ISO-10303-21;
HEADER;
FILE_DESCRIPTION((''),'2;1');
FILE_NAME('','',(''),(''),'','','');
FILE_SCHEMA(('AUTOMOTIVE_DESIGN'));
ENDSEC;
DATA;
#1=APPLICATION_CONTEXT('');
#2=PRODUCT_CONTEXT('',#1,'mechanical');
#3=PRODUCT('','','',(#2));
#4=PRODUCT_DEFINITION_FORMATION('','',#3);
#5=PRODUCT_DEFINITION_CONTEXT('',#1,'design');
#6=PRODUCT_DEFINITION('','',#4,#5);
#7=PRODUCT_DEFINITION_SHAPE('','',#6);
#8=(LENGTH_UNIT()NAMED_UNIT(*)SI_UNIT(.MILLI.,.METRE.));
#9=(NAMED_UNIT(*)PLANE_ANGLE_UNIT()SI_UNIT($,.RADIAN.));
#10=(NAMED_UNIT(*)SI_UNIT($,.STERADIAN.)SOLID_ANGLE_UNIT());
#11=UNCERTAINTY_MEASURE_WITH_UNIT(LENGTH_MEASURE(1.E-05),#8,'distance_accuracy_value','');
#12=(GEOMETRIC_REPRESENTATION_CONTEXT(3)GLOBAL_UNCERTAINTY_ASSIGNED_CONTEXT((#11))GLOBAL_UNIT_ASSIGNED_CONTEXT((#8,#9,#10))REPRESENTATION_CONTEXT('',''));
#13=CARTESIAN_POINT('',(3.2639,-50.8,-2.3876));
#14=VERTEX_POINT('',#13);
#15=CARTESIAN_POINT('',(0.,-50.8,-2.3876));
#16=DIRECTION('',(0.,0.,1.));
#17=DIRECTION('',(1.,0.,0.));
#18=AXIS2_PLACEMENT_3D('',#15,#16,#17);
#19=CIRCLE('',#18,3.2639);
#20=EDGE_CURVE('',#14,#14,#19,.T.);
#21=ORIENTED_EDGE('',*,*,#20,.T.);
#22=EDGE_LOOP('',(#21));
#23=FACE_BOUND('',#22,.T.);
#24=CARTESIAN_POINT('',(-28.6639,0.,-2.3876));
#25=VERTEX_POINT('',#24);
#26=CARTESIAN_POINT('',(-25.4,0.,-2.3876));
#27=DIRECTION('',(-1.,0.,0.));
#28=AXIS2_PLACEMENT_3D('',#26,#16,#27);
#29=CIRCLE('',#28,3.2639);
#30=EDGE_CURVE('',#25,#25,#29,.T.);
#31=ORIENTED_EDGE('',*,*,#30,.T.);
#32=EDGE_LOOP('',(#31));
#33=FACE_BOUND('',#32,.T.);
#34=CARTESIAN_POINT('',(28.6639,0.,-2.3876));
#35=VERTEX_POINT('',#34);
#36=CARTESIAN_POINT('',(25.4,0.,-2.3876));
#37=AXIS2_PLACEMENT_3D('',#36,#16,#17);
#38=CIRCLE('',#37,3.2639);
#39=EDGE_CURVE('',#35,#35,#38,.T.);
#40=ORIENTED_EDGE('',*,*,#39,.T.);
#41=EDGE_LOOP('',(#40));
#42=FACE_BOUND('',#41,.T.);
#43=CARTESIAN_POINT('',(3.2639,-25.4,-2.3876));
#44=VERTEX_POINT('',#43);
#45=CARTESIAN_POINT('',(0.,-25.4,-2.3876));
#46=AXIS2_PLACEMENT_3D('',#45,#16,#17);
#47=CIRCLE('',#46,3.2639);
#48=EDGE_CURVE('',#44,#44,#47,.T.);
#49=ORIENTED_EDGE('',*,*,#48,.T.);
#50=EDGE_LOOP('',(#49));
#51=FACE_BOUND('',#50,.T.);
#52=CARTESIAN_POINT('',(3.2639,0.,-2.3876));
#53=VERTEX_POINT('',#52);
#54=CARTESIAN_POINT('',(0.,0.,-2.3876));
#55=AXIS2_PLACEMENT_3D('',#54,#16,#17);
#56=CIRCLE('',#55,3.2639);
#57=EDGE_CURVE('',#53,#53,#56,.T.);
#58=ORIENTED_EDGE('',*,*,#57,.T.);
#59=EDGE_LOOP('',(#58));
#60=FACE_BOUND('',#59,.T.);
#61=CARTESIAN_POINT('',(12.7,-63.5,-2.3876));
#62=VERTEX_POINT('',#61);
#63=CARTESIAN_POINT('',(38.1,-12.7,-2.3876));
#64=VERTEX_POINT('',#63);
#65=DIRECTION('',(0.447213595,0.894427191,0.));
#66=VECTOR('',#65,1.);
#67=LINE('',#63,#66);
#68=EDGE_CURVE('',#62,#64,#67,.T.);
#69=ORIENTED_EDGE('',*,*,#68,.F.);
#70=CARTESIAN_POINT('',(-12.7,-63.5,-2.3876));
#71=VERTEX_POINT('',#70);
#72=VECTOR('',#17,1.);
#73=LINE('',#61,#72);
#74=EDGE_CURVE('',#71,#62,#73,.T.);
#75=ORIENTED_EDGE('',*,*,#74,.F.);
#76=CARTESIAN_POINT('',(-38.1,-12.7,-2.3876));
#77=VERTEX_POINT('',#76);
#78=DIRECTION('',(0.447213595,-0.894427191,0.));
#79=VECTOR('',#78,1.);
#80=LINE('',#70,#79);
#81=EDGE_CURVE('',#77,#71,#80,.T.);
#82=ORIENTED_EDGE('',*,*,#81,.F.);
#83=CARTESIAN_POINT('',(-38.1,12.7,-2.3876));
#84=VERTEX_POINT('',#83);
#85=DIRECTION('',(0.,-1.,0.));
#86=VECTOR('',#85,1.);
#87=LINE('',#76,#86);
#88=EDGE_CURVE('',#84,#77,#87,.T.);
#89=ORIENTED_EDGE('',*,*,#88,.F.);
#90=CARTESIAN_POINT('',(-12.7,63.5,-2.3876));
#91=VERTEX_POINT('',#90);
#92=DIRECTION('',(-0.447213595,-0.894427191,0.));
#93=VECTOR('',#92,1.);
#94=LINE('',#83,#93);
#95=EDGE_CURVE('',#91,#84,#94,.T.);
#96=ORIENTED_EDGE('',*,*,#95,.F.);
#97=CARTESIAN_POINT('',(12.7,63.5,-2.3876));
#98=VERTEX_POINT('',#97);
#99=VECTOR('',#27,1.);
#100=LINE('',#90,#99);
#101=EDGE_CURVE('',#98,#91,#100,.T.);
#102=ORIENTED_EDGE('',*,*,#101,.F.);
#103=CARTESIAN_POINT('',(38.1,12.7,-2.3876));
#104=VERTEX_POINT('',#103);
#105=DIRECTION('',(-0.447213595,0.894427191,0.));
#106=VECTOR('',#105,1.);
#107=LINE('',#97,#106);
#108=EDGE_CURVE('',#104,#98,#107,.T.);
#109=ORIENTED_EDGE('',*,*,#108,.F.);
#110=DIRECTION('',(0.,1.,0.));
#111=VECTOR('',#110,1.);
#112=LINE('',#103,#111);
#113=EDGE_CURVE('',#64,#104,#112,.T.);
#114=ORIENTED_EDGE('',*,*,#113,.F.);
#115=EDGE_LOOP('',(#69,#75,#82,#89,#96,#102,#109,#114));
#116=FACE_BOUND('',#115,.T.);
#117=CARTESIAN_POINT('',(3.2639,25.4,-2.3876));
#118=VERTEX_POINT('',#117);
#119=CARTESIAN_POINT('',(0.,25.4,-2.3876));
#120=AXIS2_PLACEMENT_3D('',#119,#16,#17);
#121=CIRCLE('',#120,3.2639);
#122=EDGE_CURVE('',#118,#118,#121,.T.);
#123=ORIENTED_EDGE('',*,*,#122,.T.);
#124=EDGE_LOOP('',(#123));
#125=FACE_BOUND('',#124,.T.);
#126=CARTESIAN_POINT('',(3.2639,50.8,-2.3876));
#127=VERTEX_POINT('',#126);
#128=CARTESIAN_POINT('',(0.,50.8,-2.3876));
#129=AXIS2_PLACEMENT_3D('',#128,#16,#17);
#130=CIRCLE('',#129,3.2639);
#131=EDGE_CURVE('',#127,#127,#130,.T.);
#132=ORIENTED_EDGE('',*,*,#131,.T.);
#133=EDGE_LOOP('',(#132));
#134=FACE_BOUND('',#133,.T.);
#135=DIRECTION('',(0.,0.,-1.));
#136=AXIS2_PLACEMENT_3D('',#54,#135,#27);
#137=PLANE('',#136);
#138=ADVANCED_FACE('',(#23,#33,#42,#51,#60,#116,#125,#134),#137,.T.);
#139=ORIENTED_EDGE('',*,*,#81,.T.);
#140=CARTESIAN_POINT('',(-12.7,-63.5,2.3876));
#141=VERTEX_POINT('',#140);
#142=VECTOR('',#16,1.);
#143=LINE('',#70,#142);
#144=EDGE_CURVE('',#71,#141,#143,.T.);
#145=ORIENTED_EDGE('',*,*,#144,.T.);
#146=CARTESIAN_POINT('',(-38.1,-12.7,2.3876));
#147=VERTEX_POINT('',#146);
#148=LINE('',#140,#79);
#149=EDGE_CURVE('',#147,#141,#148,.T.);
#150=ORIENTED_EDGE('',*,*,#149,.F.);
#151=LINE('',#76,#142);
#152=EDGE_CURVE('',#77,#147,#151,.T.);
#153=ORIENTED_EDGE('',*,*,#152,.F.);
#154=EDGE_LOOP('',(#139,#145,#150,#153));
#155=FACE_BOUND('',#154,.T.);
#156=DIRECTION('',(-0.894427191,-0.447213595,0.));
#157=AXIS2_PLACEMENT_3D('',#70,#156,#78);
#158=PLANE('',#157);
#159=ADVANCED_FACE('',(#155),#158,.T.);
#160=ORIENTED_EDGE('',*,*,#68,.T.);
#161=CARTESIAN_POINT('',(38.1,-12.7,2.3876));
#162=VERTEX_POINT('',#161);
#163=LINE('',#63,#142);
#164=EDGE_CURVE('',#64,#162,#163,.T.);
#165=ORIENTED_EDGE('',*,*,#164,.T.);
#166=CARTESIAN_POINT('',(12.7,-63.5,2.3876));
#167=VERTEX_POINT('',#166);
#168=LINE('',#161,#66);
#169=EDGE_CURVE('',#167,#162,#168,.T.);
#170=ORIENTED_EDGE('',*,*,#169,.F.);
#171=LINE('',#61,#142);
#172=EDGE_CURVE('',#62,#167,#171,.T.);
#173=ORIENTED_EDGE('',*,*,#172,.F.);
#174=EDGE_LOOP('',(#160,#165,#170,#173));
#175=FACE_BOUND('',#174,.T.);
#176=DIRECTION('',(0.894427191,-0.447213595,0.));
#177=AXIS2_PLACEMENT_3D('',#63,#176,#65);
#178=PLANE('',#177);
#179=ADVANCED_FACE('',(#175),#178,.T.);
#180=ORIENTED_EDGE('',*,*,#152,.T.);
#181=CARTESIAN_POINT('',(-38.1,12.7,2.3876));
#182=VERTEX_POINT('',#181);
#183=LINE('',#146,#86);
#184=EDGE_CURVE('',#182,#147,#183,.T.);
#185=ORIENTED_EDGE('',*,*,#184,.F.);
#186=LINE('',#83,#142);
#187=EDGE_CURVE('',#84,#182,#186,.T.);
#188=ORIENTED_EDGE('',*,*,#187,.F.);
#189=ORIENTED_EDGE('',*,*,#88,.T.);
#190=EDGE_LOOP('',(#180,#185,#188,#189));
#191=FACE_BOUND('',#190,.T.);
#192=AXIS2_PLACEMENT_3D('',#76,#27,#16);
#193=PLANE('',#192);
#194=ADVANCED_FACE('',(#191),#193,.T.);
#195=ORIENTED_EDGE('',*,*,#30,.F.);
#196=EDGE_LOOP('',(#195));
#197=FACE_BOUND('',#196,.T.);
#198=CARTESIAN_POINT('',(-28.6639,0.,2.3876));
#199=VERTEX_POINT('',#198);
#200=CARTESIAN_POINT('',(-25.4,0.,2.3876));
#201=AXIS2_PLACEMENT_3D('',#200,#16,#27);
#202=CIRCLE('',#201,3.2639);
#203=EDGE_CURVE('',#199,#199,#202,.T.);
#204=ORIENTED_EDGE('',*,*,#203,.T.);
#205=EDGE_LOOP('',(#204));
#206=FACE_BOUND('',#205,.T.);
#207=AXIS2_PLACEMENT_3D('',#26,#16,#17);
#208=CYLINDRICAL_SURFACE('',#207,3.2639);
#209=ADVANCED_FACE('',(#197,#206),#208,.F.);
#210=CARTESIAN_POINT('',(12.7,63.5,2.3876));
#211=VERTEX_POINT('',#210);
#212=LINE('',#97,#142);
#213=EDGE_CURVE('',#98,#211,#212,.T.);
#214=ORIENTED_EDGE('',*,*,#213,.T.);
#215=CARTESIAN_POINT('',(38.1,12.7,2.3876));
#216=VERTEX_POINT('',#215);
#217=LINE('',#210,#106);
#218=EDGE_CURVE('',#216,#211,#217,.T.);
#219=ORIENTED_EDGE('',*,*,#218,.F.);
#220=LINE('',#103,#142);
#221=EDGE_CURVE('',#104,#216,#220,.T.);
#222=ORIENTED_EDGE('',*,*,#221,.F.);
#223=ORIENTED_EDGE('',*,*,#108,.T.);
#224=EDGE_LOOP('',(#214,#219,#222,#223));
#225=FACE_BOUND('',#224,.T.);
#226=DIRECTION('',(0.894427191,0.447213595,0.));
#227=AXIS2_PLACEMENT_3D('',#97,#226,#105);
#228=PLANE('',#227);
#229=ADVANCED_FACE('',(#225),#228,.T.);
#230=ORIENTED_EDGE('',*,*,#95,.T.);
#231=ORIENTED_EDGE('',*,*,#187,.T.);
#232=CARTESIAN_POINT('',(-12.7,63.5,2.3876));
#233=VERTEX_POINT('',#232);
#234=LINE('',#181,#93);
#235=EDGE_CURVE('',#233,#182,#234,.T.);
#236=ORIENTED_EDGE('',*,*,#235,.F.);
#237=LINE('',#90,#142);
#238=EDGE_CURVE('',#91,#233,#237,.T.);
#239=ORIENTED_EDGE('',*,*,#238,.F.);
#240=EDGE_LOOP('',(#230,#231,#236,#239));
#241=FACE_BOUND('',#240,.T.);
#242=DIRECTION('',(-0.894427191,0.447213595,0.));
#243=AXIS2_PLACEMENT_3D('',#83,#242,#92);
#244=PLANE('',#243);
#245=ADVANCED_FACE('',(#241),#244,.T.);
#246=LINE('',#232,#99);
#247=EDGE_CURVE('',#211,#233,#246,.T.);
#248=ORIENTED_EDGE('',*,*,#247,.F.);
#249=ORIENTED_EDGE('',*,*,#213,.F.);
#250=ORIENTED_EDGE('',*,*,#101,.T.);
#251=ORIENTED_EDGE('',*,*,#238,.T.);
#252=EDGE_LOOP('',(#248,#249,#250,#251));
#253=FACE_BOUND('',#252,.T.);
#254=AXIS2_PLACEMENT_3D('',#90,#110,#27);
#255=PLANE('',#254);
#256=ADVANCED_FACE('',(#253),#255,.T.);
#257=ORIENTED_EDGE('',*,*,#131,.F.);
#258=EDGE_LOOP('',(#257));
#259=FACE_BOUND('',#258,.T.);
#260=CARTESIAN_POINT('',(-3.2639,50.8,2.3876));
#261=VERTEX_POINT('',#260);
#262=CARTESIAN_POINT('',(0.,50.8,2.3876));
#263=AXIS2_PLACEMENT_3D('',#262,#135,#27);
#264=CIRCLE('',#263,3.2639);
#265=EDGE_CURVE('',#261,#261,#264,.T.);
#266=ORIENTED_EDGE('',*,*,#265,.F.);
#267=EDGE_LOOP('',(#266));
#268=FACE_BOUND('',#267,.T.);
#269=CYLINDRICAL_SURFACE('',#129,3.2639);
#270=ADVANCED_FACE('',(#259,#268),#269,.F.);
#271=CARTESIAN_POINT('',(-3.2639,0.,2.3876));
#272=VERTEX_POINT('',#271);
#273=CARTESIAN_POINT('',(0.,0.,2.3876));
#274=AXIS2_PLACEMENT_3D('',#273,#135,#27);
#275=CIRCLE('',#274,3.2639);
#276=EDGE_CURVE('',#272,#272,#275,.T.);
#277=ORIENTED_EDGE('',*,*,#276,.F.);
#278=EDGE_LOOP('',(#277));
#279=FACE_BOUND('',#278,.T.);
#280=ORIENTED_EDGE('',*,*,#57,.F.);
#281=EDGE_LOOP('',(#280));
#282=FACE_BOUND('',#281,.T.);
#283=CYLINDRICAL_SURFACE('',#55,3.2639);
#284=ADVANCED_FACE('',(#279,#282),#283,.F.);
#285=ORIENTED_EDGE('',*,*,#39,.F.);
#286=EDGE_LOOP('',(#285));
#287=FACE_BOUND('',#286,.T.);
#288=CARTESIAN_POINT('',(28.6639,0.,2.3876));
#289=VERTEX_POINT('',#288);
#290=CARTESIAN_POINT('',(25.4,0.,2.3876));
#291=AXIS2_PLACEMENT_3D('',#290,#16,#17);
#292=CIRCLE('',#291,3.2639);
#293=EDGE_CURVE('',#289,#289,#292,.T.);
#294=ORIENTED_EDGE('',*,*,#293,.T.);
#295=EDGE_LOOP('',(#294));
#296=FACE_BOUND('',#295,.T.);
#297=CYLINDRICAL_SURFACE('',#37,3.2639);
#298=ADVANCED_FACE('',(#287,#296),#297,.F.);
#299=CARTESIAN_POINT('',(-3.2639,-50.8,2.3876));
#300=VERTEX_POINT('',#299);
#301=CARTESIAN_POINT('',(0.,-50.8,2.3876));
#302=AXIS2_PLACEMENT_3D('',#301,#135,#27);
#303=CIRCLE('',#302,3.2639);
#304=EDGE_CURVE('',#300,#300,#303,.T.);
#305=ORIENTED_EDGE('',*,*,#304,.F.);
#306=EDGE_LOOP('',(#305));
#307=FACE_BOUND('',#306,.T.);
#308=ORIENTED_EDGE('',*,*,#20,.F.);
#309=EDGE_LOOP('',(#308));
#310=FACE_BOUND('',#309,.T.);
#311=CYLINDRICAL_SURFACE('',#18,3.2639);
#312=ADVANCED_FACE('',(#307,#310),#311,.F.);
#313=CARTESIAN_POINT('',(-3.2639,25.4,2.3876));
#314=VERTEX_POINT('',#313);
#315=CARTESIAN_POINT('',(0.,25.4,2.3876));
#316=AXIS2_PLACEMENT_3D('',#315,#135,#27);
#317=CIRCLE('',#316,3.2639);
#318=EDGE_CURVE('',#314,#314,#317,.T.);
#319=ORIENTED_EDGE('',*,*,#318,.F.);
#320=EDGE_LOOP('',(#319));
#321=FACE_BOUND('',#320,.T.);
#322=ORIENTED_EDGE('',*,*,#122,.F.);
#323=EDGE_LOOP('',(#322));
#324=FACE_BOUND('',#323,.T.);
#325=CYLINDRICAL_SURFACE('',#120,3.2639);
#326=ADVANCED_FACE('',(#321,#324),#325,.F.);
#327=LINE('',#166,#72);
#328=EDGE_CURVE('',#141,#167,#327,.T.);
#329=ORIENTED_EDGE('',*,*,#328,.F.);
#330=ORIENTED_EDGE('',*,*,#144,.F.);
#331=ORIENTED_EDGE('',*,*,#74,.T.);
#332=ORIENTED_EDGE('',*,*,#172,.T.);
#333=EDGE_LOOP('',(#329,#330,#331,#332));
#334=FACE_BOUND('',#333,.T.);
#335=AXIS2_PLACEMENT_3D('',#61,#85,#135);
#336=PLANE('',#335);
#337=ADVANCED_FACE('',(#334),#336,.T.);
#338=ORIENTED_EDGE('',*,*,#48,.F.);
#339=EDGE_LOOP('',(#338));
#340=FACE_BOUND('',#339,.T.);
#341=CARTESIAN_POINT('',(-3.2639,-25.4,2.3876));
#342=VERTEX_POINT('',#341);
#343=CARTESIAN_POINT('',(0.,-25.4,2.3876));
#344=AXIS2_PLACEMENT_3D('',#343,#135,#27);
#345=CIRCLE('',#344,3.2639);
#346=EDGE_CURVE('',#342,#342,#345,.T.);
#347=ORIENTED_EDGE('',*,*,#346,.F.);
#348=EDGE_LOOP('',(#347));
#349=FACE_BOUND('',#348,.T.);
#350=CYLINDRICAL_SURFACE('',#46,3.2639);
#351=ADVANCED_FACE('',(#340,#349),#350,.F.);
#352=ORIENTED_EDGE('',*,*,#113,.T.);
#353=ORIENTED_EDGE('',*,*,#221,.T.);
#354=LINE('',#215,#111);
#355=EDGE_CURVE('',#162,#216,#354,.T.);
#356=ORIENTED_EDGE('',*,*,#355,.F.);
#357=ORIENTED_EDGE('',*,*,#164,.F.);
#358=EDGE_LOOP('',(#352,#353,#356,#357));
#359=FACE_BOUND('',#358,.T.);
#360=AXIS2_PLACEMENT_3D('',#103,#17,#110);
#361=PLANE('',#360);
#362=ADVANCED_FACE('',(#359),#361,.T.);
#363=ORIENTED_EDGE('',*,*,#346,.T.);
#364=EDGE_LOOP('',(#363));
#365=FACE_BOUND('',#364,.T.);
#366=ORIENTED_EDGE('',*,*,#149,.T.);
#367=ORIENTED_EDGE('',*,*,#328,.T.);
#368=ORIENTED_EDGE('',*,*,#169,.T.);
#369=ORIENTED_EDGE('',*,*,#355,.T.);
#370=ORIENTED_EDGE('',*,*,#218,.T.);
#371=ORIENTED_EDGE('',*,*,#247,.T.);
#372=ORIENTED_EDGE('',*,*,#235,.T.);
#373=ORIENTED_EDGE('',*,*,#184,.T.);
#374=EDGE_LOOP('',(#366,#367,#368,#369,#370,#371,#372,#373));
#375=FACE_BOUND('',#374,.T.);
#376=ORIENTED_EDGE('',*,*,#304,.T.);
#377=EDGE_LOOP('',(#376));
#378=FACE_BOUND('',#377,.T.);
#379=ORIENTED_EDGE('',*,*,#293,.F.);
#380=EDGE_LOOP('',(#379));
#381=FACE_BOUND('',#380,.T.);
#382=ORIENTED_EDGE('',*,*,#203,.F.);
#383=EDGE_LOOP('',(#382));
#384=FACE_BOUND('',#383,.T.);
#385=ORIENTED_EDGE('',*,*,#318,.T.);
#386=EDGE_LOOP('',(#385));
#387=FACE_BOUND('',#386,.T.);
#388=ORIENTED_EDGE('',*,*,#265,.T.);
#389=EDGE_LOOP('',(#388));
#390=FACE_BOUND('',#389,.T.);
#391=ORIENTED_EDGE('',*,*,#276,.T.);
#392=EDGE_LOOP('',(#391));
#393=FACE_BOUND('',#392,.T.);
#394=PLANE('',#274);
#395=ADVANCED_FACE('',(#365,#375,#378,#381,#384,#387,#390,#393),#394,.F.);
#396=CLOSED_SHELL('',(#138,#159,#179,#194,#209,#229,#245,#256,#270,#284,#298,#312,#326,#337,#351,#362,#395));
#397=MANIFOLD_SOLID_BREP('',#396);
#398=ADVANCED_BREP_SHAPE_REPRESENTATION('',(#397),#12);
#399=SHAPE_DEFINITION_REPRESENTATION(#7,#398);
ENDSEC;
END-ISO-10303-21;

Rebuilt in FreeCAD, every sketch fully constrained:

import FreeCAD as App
import Part
import Sketcher
from FreeCAD import Vector
Q = App.Units.Quantity


def add_polygon(sketch, points):
    """Adds a closed chain of lines whose ends are joined by coincident constraints."""
    first, n = sketch.GeometryCount, len(points)
    for a, b in zip(points, points[1:] + points[:1]):
        sketch.addGeometry(Part.LineSegment(App.Vector(*a, 0), App.Vector(*b, 0)), False)
    for i in range(n):
        sketch.addConstraint(Sketcher.Constraint("Coincident", first + i, 2, first + (i + 1) % n, 1))

doc = App.newDocument("Part")
body = doc.addObject("PartDesign::Body", "Body")

sketch1 = body.newObject("Sketcher::SketchObject", "Sketch")
sketch1.AttachmentSupport = (doc.getObject("XY_Plane"), [""])
sketch1.MapMode = "FlatFace"
add_polygon(sketch1, [(12.7, 63.5), (-12.7, 63.5), (-38.1, 12.7), (-38.1, -12.7), (-12.7, -63.5), (12.7, -63.5), (38.1, -12.7), (38.1, 12.7)])
sketch1.addConstraint(Sketcher.Constraint("Horizontal", 0))
sketch1.addConstraint(Sketcher.Constraint("Vertical", 2))
sketch1.addConstraint(Sketcher.Constraint("Horizontal", 4))
sketch1.addConstraint(Sketcher.Constraint("Vertical", 6))
sketch1.addConstraint(Sketcher.Constraint("Symmetric", 0, 2, 4, 2, -1, 1))
sketch1.addConstraint(Sketcher.Constraint("Symmetric", 1, 2, 5, 2, -1, 1))
sketch1.addConstraint(Sketcher.Constraint("Parallel", 3, 7))
sketch1.addConstraint(Sketcher.Constraint("Horizontal", 2, 2, 5, 2))
sketch1.addConstraint(Sketcher.Constraint("Horizontal", 1, 2, 6, 2))
sketch1.addConstraint(Sketcher.Constraint("Vertical", 0, 2, 3, 2))
sketch1.addConstraint(Sketcher.Constraint("Equal", 4, 2))
sketch1.addConstraint(Sketcher.Constraint("DistanceX", 0, 2, 0, 1, Q("1 in")))
sketch1.addConstraint(Sketcher.Constraint("DistanceX", 1, 2, 0, 2, Q("1 in")))
sketch1.addConstraint(Sketcher.Constraint("DistanceY", 1, 2, 0, 2, Q("2 in")))
pad1 = body.newObject("PartDesign::Pad", "Pad")
pad1.Profile = sketch1
pad1.Type = "TwoLengths"
pad1.Length = Q("0.094 in")
pad1.Length2 = Q("0.094 in")

sketch2 = body.newObject("Sketcher::SketchObject", "Sketch001")
sketch2.AttachmentSupport = (doc.getObject("XY_Plane"), [""])
sketch2.MapMode = "FlatFace"
sketch2.AttachmentOffset = App.Placement(Vector(0, 0, 0.094 * 25.4), App.Rotation())
sketch2.addGeometry(Part.Circle(Vector(0, 50.8, 0), Vector(0, 0, 1), 3.2639), False)
sketch2.addGeometry(Part.Circle(Vector(0, 25.4, 0), Vector(0, 0, 1), 3.2639), False)
sketch2.addGeometry(Part.Circle(Vector(0, 0, 0), Vector(0, 0, 1), 3.2639), False)
sketch2.addGeometry(Part.Circle(Vector(0, -25.4, 0), Vector(0, 0, 1), 3.2639), False)
sketch2.addGeometry(Part.Circle(Vector(0, -50.8, 0), Vector(0, 0, 1), 3.2639), False)
sketch2.addConstraint(Sketcher.Constraint("Coincident", 2, 3, -1, 1))
sketch2.addConstraint(Sketcher.Constraint("Equal", 0, 1))
sketch2.addConstraint(Sketcher.Constraint("Equal", 1, 2))
sketch2.addConstraint(Sketcher.Constraint("Equal", 2, 3))
sketch2.addConstraint(Sketcher.Constraint("Equal", 3, 4))
sketch2.addConstraint(Sketcher.Constraint("Symmetric", 1, 3, 3, 3, -1, 1))
sketch2.addConstraint(Sketcher.Constraint("Symmetric", 0, 3, 4, 3, -1, 1))
sketch2.addConstraint(Sketcher.Constraint("PointOnObject", 0, 3, -2))
sketch2.addConstraint(Sketcher.Constraint("PointOnObject", 1, 3, -2))
sketch2.addConstraint(Sketcher.Constraint("Diameter", 0, Q("0.257 in")))
sketch2.addConstraint(Sketcher.Constraint("DistanceY", -1, 1, 0, 3, Q("2 in")))
sketch2.addConstraint(Sketcher.Constraint("DistanceY", -1, 1, 1, 3, Q("1 in")))
pocket1 = body.newObject("PartDesign::Pocket", "Pocket")
pocket1.Profile = sketch2
pocket1.Type = "ThroughAll"
pocket1.Midplane = True

sketch3 = body.newObject("Sketcher::SketchObject", "Sketch002")
sketch3.AttachmentSupport = (doc.getObject("XY_Plane"), [""])
sketch3.MapMode = "FlatFace"
sketch3.AttachmentOffset = App.Placement(Vector(0, 0, 0.094 * 25.4), App.Rotation())
sketch3.addGeometry(Part.Circle(Vector(25.4, 0, 0), Vector(0, 0, 1), 3.2639), False)
sketch3.addGeometry(Part.Circle(Vector(-25.4, 0, 0), Vector(0, 0, 1), 3.2639), False)
sketch3.addConstraint(Sketcher.Constraint("Equal", 0, 1))
sketch3.addConstraint(Sketcher.Constraint("Symmetric", 0, 3, 1, 3, -1, 1))
sketch3.addConstraint(Sketcher.Constraint("PointOnObject", 0, 3, -1))
sketch3.addConstraint(Sketcher.Constraint("Diameter", 0, Q("0.257 in")))
sketch3.addConstraint(Sketcher.Constraint("DistanceX", -1, 1, 0, 3, Q("1 in")))
pocket2 = body.newObject("PartDesign::Pocket", "Pocket001")
pocket2.Profile = sketch3
pocket2.Type = "ThroughAll"

doc.recompute()
